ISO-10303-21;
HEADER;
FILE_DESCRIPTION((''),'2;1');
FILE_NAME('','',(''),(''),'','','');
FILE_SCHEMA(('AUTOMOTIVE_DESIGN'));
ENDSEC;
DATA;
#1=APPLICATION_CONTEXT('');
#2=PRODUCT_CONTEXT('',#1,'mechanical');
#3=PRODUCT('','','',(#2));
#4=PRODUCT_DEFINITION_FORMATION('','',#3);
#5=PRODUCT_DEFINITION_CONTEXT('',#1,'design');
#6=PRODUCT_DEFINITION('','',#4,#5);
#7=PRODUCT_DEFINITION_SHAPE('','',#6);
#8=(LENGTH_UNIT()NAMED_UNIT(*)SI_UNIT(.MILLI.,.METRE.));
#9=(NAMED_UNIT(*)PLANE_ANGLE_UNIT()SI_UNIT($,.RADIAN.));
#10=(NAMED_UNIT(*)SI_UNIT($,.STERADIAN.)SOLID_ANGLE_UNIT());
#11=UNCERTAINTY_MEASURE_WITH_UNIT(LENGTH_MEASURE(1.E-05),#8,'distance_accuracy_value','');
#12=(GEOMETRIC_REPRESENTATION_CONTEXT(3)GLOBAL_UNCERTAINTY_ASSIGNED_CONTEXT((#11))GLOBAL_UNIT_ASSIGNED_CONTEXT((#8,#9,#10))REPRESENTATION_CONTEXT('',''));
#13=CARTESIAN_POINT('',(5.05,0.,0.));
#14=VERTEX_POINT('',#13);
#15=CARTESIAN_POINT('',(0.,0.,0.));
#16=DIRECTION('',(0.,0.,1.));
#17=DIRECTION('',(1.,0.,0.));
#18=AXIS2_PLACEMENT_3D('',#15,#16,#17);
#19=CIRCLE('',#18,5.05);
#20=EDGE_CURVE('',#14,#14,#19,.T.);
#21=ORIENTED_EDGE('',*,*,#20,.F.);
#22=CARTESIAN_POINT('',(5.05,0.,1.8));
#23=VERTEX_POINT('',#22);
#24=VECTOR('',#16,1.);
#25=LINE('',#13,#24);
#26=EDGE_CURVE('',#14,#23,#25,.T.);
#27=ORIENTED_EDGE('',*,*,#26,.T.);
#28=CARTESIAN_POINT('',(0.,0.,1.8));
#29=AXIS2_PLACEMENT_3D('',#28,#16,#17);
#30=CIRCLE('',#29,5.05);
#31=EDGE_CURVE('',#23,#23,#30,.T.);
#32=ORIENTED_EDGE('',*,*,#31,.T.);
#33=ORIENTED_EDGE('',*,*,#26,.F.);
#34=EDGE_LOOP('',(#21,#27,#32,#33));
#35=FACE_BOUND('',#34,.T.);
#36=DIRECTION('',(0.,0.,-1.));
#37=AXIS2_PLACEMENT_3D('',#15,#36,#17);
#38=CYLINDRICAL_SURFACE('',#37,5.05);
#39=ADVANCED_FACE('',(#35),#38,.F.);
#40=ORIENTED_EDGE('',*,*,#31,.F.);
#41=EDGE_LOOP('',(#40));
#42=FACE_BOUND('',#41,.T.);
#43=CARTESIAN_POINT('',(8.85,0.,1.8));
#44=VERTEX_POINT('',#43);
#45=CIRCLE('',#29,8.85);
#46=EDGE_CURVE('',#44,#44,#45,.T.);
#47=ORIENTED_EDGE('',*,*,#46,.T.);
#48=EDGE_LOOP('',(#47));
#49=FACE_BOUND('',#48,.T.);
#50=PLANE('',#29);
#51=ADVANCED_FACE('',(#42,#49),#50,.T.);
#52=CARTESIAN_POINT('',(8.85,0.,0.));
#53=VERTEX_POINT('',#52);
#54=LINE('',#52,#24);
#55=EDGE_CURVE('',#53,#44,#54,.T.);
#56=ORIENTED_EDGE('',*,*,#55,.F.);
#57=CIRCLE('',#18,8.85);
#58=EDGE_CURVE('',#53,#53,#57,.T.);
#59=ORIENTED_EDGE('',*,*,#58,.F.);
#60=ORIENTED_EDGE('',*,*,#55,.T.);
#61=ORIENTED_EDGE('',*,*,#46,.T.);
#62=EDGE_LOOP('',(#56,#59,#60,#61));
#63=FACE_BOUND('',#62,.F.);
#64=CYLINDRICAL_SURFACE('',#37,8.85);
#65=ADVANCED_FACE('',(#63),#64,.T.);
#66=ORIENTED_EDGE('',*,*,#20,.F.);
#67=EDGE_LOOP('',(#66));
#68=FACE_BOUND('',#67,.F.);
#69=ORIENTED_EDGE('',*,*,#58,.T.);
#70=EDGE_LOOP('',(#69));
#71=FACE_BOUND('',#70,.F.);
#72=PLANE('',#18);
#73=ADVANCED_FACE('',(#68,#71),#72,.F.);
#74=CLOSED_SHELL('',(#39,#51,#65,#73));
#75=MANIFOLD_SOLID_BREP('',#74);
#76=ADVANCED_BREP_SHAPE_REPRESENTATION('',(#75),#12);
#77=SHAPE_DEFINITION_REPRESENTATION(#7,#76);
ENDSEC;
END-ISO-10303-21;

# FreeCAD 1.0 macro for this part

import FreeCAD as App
import Part
import Sketcher
from FreeCAD import Vector
Q = App.Units.Quantity

doc = App.newDocument("Part")
body = doc.addObject("PartDesign::Body", "Body")

# Sketch on XY plane
sketch1 = doc.addObject("Sketcher::SketchObject", "Sketch")
body.addObject(sketch1)
sketch1.AttachmentSupport = (doc.XY_Plane, [""])
sketch1.MapMode = "FlatFace"
sketch1.addGeometry([
    Part.Circle(Vector(0, 0, 0), Vector(0, 0, 1), 9),
    Part.Circle(Vector(0, 0, 0), Vector(0, 0, 1), 5),
], False)
sketch1.addConstraint([
    Sketcher.Constraint("Coincident", 0, 3, -1, 1),
    Sketcher.Constraint("Coincident", 1, 3, -1, 1),
    Sketcher.Constraint("Diameter", 0, Q("17.7 mm")),
    Sketcher.Constraint("Diameter", 1, Q("10.1 mm")),
])
pad1 = doc.addObject("PartDesign::Pad", "Pad")
body.addObject(pad1)
pad1.Profile = sketch1
pad1.Length = 1.8

doc.recompute()
